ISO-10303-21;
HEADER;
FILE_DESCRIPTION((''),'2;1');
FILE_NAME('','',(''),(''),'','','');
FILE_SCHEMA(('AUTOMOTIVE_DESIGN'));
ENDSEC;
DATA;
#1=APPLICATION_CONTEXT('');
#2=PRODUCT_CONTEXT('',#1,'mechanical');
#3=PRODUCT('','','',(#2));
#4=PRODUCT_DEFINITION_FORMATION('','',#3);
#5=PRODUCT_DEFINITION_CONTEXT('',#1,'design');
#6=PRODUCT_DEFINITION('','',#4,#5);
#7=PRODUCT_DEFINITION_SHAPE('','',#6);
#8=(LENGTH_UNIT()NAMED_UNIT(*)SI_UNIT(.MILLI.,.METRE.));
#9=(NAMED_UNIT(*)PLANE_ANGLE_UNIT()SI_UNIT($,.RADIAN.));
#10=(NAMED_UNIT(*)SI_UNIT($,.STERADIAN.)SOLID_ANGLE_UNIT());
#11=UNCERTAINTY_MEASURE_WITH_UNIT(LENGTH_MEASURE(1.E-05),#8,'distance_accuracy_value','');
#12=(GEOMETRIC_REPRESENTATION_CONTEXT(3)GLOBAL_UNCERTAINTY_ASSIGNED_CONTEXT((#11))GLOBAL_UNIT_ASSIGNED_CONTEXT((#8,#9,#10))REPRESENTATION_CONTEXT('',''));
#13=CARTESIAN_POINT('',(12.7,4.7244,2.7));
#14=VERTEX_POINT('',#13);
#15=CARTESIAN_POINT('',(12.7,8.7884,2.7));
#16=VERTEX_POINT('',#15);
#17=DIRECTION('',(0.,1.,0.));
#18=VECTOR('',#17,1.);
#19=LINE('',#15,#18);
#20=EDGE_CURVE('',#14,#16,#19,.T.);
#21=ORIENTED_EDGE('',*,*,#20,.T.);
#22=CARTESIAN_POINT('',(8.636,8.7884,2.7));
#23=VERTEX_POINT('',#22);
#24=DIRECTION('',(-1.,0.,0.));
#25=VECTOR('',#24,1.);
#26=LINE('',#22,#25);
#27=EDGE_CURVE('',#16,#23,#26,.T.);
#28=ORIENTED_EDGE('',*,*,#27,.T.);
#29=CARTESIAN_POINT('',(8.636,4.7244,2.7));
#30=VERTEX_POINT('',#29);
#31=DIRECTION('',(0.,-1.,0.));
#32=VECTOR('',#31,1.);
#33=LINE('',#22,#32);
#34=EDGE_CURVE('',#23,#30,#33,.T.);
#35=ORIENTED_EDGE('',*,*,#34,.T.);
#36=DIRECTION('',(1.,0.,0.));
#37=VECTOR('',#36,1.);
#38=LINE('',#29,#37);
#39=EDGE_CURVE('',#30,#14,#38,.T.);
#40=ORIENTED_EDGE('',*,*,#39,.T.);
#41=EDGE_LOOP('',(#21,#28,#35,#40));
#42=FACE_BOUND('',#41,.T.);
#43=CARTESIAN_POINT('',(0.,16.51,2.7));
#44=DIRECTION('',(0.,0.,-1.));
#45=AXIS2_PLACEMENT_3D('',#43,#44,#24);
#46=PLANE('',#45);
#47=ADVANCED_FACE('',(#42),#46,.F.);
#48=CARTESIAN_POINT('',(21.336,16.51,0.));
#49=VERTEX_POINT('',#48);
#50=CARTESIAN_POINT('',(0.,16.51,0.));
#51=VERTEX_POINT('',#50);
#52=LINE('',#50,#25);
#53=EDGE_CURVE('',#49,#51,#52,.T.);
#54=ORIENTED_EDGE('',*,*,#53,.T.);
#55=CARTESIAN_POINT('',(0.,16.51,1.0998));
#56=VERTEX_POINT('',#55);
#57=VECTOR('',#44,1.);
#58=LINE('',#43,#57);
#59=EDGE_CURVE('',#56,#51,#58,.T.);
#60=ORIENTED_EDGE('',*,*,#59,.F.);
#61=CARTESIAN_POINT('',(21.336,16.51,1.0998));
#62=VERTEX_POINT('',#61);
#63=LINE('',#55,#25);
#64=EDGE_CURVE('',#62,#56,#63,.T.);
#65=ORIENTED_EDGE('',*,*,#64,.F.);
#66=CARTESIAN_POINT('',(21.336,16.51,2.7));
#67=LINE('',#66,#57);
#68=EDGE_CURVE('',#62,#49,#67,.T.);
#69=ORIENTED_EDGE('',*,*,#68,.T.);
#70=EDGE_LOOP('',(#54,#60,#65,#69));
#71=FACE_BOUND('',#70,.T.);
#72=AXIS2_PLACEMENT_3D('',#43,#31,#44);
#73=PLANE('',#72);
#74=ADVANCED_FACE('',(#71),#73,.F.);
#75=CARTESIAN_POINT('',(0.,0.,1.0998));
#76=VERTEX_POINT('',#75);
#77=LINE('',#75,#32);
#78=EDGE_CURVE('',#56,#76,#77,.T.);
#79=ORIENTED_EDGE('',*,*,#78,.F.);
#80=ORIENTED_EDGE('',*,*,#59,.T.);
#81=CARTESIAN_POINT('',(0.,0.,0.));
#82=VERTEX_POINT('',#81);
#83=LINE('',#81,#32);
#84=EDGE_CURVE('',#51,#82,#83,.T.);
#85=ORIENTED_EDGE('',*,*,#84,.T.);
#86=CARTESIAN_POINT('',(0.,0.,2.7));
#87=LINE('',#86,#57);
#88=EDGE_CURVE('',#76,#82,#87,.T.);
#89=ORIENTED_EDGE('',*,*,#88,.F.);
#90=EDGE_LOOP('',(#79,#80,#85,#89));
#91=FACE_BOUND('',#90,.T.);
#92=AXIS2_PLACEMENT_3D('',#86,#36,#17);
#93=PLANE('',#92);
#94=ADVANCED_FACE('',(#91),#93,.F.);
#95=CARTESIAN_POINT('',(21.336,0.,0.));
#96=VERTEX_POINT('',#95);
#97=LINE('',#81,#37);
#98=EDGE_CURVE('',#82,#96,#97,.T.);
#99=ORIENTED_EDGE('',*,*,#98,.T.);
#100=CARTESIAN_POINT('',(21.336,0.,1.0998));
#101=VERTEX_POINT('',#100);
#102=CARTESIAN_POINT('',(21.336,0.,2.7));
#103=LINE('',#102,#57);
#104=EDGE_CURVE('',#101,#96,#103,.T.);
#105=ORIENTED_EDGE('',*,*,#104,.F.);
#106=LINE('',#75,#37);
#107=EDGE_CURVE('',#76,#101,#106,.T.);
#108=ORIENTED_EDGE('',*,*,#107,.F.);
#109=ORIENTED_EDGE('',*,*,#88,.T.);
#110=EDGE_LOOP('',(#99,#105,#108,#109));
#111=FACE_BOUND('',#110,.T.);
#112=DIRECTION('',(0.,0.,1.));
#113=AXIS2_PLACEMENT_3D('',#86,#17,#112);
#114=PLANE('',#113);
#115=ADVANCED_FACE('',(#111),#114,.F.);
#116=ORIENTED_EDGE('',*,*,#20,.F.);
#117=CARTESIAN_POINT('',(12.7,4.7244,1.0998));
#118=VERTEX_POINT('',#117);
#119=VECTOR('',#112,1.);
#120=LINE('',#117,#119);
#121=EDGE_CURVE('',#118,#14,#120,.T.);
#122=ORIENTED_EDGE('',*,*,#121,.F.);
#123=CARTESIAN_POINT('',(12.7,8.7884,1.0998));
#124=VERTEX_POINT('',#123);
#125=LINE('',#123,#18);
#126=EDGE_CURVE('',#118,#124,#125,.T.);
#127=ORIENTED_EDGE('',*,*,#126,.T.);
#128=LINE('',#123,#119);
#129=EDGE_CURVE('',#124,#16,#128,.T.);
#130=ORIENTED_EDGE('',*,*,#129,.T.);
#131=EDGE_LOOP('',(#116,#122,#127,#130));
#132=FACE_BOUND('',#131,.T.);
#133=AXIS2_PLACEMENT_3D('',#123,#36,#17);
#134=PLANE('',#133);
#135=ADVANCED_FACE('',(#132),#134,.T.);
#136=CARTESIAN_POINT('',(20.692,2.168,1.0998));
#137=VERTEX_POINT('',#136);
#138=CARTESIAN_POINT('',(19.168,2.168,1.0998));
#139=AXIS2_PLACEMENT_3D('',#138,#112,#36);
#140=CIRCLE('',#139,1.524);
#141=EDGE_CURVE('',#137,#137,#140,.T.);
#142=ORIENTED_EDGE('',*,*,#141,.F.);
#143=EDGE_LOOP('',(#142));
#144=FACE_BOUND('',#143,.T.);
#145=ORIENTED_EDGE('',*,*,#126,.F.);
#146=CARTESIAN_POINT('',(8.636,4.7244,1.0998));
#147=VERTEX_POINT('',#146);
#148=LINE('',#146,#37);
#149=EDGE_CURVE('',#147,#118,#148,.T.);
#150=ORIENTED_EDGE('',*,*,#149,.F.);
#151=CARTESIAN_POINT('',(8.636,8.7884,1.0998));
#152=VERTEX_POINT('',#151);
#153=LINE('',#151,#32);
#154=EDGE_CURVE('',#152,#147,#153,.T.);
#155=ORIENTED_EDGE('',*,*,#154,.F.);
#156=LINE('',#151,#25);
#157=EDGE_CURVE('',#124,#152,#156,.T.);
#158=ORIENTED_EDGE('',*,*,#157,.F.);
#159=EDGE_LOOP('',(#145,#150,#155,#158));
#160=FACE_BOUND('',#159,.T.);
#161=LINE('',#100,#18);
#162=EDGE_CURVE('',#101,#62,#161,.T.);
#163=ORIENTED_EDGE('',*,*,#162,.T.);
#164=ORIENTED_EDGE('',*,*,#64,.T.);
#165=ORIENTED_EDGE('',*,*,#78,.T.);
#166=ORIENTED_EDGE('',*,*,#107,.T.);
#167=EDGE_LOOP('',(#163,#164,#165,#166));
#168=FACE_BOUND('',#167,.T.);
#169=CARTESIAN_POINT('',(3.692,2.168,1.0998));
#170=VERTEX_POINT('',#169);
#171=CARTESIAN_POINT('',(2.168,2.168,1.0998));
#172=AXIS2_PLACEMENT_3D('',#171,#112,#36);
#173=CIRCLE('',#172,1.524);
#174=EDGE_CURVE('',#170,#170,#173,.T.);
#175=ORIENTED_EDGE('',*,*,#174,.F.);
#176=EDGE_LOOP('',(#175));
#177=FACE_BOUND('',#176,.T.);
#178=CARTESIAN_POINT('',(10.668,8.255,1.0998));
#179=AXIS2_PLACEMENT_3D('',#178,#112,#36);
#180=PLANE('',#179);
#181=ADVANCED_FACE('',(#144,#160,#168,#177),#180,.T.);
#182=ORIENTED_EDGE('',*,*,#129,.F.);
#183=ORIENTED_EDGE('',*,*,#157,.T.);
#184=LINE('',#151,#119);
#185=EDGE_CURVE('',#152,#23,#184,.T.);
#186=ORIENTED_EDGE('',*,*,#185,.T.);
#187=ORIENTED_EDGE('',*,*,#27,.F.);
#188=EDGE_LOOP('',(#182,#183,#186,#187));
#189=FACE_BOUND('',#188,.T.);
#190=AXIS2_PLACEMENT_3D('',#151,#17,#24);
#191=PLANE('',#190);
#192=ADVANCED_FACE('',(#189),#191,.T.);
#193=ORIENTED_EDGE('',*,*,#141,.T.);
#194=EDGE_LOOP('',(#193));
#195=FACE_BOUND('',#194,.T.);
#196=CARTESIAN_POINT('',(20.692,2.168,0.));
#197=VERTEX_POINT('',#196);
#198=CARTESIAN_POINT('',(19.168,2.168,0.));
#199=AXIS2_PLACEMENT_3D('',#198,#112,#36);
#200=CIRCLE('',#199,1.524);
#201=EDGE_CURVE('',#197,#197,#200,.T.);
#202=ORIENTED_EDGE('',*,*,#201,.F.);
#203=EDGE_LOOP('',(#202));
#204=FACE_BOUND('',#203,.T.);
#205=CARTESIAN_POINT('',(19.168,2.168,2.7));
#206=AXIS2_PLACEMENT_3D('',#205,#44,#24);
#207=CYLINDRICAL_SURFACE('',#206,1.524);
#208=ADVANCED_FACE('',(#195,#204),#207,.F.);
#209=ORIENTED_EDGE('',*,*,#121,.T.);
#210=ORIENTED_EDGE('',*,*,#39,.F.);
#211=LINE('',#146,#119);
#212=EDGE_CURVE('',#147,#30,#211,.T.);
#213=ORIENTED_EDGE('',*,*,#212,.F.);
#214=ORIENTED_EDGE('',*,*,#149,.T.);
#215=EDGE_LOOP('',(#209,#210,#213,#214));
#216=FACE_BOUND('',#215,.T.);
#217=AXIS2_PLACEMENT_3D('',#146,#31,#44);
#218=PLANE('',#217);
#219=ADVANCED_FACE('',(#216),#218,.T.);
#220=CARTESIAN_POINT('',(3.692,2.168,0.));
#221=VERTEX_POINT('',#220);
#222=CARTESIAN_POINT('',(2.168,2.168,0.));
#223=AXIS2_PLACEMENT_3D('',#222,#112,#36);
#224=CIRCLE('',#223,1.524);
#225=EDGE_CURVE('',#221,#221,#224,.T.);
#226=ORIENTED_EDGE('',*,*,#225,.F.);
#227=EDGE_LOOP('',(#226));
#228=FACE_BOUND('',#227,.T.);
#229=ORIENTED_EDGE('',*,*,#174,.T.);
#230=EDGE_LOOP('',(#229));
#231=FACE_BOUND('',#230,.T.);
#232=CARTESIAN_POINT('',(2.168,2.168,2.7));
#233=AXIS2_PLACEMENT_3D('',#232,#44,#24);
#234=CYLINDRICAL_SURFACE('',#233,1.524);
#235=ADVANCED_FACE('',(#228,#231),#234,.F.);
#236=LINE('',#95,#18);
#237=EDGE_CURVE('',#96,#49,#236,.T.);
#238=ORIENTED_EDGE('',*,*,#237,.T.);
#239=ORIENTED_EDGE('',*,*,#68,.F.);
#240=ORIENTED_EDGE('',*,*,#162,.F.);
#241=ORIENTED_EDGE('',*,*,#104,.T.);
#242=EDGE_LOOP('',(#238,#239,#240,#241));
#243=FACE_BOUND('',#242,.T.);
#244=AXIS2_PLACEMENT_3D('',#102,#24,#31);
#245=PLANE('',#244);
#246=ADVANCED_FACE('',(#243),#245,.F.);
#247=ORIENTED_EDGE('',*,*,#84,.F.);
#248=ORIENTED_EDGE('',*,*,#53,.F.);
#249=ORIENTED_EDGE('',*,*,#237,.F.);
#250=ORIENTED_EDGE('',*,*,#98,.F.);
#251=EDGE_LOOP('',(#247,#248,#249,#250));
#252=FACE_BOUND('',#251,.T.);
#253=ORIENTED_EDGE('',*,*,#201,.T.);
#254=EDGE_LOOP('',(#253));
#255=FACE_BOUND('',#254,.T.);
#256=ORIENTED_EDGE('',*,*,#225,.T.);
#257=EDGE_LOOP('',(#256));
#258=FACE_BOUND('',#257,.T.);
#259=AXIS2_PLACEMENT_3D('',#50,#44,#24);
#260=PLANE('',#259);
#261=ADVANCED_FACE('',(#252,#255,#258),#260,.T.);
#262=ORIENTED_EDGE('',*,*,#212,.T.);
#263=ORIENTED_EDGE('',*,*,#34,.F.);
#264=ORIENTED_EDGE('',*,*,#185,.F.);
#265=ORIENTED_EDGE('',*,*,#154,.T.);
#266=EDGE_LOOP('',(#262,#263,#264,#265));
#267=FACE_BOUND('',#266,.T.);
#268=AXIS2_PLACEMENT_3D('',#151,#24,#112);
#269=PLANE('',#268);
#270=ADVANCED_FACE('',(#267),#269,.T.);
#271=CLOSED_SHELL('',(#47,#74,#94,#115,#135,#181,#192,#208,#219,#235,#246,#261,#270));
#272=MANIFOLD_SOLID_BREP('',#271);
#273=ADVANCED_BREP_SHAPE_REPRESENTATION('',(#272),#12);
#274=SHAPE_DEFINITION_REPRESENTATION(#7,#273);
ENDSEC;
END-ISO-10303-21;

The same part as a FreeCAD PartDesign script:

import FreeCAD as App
import Part
import Sketcher
Q = App.Units.Quantity

doc = App.newDocument("Part")
body = doc.addObject("PartDesign::Body", "Body")

# Sketch on XY plane
sketch1 = doc.addObject("Sketcher::SketchObject", "Sketch")
body.addObject(sketch1)
sketch1.AttachmentSupport = (doc.XY_Plane, [""])
sketch1.MapMode = "FlatFace"
sketch1.addGeometry([
    Part.LineSegment(App.Vector(0, 16.5, 0), App.Vector(0, 0, 0)),  # 0
    Part.LineSegment(App.Vector(0, 0, 0), App.Vector(21.3, 0, 0)),  # 1
    Part.LineSegment(App.Vector(21.3, 0, 0), App.Vector(21.3, 16.5, 0)),  # 2
    Part.LineSegment(App.Vector(21.3, 16.5, 0), App.Vector(0, 16.5, 0)),  # 3
    Part.Circle(App.Vector(2.2, 2.2, 0), App.Vector(0, 0, 1), 1.5),  # 4
    Part.Circle(App.Vector(19.2, 2.2, 0), App.Vector(0, 0, 1), 1.5),  # 5
], False)
sketch1.addConstraint([
    Sketcher.Constraint("Coincident", 0, 2, 1, 1),
    Sketcher.Constraint("Coincident", 1, 2, 2, 1),
    Sketcher.Constraint("Coincident", 2, 2, 3, 1),
    Sketcher.Constraint("Coincident", 3, 2, 0, 1),
    Sketcher.Constraint("Vertical", 0),
    Sketcher.Constraint("Horizontal", 1),
    Sketcher.Constraint("Vertical", 2),
    Sketcher.Constraint("Horizontal", 3),
    Sketcher.Constraint("Coincident", 0, 2, -1, 1),
    Sketcher.Constraint("Equal", 4, 5),
    Sketcher.Constraint("Horizontal", 4, 3, 5, 3),
    Sketcher.Constraint("Diameter", 4, Q("0.12 in")),
    Sketcher.Constraint("DistanceX", 1, 1, 1, 2, Q("0.84 in")),
    Sketcher.Constraint("DistanceY", 0, 2, 0, 1, Q("0.65 in")),
    Sketcher.Constraint("DistanceX", -1, 1, 4, 3, 2.168),
    Sketcher.Constraint("DistanceY", -1, 1, 4, 3, 2.168),
    Sketcher.Constraint("DistanceX", -1, 1, 5, 3, 19.168),
])
pad1 = doc.addObject("PartDesign::Pad", "Pad")
body.addObject(pad1)
pad1.Profile = sketch1
pad1.Length = 2.7

# Sketch on XY plane
sketch2 = doc.addObject("Sketcher::SketchObject", "Sketch001")
body.addObject(sketch2)
sketch2.AttachmentSupport = (doc.XY_Plane, [""])
sketch2.MapMode = "FlatFace"
sketch2.AttachmentOffset = App.Placement(App.Vector(0, 0, 2.7), App.Rotation())
sketch2.addGeometry([
    Part.LineSegment(App.Vector(-3.7, 20.2, 0), App.Vector(-3.7, -3.7, 0)),  # 0
    Part.LineSegment(App.Vector(-3.7, -3.7, 0), App.Vector(25, -3.7, 0)),  # 1
    Part.LineSegment(App.Vector(25, -3.7, 0), App.Vector(25, 20.2, 0)),  # 2
    Part.LineSegment(App.Vector(25, 20.2, 0), App.Vector(-3.7, 20.2, 0)),  # 3
    Part.LineSegment(App.Vector(12.7, 4.7, 0), App.Vector(8.6, 4.7, 0)),  # 4
    Part.LineSegment(App.Vector(8.6, 4.7, 0), App.Vector(8.6, 8.8, 0)),  # 5
    Part.LineSegment(App.Vector(8.6, 8.8, 0), App.Vector(12.7, 8.8, 0)),  # 6
    Part.LineSegment(App.Vector(12.7, 8.8, 0), App.Vector(12.7, 4.7, 0)),  # 7
], False)
sketch2.addConstraint([
    Sketcher.Constraint("Coincident", 0, 2, 1, 1),
    Sketcher.Constraint("Coincident", 1, 2, 2, 1),
    Sketcher.Constraint("Coincident", 2, 2, 3, 1),
    Sketcher.Constraint("Coincident", 3, 2, 0, 1),
    Sketcher.Constraint("Coincident", 4, 2, 5, 1),
    Sketcher.Constraint("Coincident", 5, 2, 6, 1),
    Sketcher.Constraint("Coincident", 6, 2, 7, 1),
    Sketcher.Constraint("Coincident", 7, 2, 4, 1),
    Sketcher.Constraint("Vertical", 0),
    Sketcher.Constraint("Horizontal", 1),
    Sketcher.Constraint("Vertical", 2),
    Sketcher.Constraint("Horizontal", 3),
    Sketcher.Constraint("Horizontal", 4),
    Sketcher.Constraint("Vertical", 5),
    Sketcher.Constraint("Horizontal", 6),
    Sketcher.Constraint("Vertical", 7),
    Sketcher.Constraint("Equal", 6, 5),
    Sketcher.Constraint("DistanceX", 4, 2, 4, 1, Q("0.16 in")),
    Sketcher.Constraint("DistanceX", -1, 1, 6, 2, Q("0.5 in")),
    Sketcher.Constraint("DistanceY", -1, 1, 4, 2, Q("0.186 in")),
    Sketcher.Constraint("DistanceX", 1, 1, 1, 2, 28.758),
    Sketcher.Constraint("DistanceY", 0, 2, 0, 1, 23.932),
    Sketcher.Constraint("DistanceX", 0, 2, -1, 1, 3.711),
    Sketcher.Constraint("DistanceY", 0, 2, -1, 1, 3.711),
])
pocket1 = doc.addObject("PartDesign::Pocket", "Pocket")
body.addObject(pocket1)
pocket1.Profile = sketch2
pocket1.Length = Q("0.063 in")

doc.recompute()
